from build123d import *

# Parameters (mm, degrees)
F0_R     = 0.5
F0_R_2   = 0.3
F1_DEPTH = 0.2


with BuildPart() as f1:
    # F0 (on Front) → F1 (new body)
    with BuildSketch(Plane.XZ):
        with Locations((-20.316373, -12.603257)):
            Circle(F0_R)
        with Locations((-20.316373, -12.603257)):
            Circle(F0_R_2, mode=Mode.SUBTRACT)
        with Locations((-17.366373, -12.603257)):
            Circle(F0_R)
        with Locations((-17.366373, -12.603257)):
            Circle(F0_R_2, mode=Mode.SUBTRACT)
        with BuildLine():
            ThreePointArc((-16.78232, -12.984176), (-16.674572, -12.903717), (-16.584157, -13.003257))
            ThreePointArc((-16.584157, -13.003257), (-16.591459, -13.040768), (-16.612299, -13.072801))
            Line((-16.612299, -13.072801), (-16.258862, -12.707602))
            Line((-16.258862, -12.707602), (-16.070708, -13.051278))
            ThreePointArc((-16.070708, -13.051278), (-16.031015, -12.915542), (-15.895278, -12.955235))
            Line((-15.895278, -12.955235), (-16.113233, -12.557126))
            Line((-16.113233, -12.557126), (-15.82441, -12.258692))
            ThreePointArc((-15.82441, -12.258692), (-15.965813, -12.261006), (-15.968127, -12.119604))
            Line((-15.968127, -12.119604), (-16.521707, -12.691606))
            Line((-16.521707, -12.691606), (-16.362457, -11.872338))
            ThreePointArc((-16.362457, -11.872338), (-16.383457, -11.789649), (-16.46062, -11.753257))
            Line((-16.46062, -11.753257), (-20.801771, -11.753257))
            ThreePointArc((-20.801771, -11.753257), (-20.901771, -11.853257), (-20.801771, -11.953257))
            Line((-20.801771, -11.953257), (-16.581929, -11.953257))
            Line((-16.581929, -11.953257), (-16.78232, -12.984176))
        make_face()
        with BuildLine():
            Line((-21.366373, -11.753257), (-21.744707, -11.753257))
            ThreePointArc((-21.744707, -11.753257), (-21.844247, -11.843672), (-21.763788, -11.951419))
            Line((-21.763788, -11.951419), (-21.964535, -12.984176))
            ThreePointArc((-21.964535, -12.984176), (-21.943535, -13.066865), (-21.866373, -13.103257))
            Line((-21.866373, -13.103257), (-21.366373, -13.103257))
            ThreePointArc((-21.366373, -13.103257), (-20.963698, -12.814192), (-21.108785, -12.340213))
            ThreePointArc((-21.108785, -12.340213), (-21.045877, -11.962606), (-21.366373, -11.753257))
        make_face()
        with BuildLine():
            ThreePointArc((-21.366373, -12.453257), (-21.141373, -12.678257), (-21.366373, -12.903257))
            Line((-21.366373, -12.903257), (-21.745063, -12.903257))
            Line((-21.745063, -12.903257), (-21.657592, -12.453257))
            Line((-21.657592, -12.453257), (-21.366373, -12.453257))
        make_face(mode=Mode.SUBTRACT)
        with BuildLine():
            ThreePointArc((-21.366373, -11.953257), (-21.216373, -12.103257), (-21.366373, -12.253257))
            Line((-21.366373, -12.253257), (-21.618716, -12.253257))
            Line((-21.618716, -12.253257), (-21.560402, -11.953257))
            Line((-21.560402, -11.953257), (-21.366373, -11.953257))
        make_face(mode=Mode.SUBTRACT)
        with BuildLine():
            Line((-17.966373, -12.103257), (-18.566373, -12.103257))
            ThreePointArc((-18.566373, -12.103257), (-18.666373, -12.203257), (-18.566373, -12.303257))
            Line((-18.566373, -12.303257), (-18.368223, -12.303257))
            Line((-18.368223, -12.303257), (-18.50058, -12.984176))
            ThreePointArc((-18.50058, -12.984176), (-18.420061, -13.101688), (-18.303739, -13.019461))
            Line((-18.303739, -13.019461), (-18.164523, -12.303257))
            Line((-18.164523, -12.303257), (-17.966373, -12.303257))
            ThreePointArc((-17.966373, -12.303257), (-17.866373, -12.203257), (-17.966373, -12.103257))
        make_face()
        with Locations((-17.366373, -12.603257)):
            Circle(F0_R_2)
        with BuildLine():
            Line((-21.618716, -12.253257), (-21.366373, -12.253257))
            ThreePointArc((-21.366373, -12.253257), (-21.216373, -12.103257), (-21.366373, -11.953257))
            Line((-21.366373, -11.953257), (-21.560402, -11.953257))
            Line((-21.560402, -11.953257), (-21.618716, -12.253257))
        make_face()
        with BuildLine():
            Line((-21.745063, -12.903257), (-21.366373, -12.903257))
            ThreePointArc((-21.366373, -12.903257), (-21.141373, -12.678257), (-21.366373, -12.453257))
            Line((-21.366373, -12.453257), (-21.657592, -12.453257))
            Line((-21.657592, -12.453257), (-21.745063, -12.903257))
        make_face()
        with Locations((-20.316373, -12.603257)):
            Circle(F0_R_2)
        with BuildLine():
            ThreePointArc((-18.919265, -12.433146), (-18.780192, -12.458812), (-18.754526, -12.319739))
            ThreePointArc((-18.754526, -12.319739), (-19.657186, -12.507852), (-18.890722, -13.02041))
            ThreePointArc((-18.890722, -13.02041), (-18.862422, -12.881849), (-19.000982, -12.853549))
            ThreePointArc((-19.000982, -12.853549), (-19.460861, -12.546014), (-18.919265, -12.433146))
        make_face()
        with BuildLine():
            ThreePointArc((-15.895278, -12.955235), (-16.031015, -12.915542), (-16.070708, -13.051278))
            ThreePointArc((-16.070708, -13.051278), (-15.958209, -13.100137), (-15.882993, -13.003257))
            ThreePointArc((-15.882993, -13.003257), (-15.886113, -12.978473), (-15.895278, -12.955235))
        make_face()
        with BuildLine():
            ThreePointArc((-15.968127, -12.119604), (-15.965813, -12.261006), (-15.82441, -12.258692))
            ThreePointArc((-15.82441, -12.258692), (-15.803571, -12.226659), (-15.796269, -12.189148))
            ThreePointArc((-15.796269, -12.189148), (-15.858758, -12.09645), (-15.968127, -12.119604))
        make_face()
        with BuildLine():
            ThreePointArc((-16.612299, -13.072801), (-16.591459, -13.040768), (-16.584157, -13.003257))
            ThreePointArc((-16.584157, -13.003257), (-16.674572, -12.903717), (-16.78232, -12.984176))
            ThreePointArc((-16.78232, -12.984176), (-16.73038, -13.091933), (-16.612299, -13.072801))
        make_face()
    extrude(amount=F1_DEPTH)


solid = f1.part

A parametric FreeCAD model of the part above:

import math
import FreeCAD as App
import Part
import Sketcher

V = App.Vector

doc = App.newDocument("Part")
params = doc.addObject("Spreadsheet::Sheet", "Params")
for row, (alias, value) in enumerate([
    ("sketch1_diameter", "1 mm"),
    ("sketch1_diameter2", "1 mm"),
    ("sketch1_radius", "0.1 mm"),
    ("sketch1_radius2", "0.1 mm"),
    ("sketch1_radius3", "0.099999 mm"),
    ("pad1_length", "0.2 mm"),
], start=1):
    params.set(f"A{row}", alias)
    params.set(f"B{row}", "=" + value)
    params.setAlias(f"B{row}", alias)

body = doc.addObject("PartDesign::Body", "Body")
body.AllowCompound = True

# Sketch on XZ plane
sketch1 = doc.addObject("Sketcher::SketchObject", "Sketch")
body.addObject(sketch1)
sketch1.AttachmentSupport = (doc.XZ_Plane, [""])
sketch1.MapMode = "FlatFace"
sketch1.addGeometry([
    Part.Circle(V(-20.316373, -12.603257, 0), V(0, 0, 1), 0.5),  # 0
    Part.Circle(V(-17.366373, -12.603257, 0), V(0, 0, 1), 0.5),  # 1
    Part.LineSegment(V(-16.612299, -13.072801, 0), V(-16.258862, -12.707602, 0)),  # 2
    Part.LineSegment(V(-16.258862, -12.707602, 0), V(-16.070708, -13.051278, 0)),  # 3
    Part.ArcOfCircle(Part.Circle(V(-15.982993, -13.003257, 0), V(0, 0, 1), 0.1), math.radians(-151.300852), math.radians(0.000022)),  # 4
    Part.ArcOfCircle(Part.Circle(V(-15.982999, -13.003258, 0), V(0, 0, 1), 0.100006), math.radians(0.000626), math.radians(28.698715)),  # 5
    Part.LineSegment(V(-15.895278, -12.955235, 0), V(-16.113233, -12.557126, 0)),  # 6
    Part.LineSegment(V(-16.113233, -12.557126, 0), V(-15.82441, -12.258692, 0)),  # 7
    Part.ArcOfCircle(Part.Circle(V(-15.896272, -12.189147, 0), V(0, 0, 1), 0.100003), math.radians(-44.06106), math.radians(-0.000403)),  # 8
    Part.ArcOfCircle(Part.Circle(V(-15.896269, -12.189148, 0), V(0, 0, 1), 0.1), math.radians(-0.000068), math.radians(135.937682)),  # 9
    Part.LineSegment(V(-15.968127, -12.119604, 0), V(-16.521707, -12.691606, 0)),  # 10
    Part.LineSegment(V(-16.521707, -12.691606, 0), V(-16.362457, -11.872338, 0)),  # 11
    Part.ArcOfCircle(Part.Circle(V(-16.460619, -11.853256, 0), V(0, 0, 1), 0.099999), math.radians(-11.000422), math.radians(90.000536)),  # 12
    Part.LineSegment(V(-16.46062, -11.753257, 0), V(-20.801771, -11.753257, 0)),  # 13
    Part.ArcOfCircle(Part.Circle(V(-20.801771, -11.853257, 0), V(0, 0, 1), 0.1), math.radians(90), math.radians(270)),  # 14
    Part.LineSegment(V(-20.801771, -11.953257, 0), V(-16.581929, -11.953257, 0)),  # 15
    Part.LineSegment(V(-16.581929, -11.953257, 0), V(-16.78232, -12.984176, 0)),  # 16
    Part.ArcOfCircle(Part.Circle(V(-16.684157, -13.003257, 0), V(0, 0, 1), 0.1), math.radians(169.000028), math.radians(315.937591)),  # 17
    Part.LineSegment(V(-21.366373, -11.753257, 0), V(-21.744707, -11.753257, 0)),  # 18
    Part.ArcOfCircle(Part.Circle(V(-21.744708, -11.853257, 0), V(0, 0, 1), 0.1), math.radians(89.999538), math.radians(259.000365)),  # 19
    Part.LineSegment(V(-21.763788, -11.951419, 0), V(-21.964535, -12.984176, 0)),  # 20
    Part.ArcOfCircle(Part.Circle(V(-21.866373, -13.003258, 0), V(0, 0, 1), 0.099999), math.radians(168.999578), math.radians(269.999963)),  # 21
    Part.LineSegment(V(-21.866373, -13.103257, 0), V(-21.366373, -13.103257, 0)),  # 22
    Part.ArcOfCircle(Part.Circle(V(-21.366372, -12.678257, 0), V(0, 0, 1), 0.425), math.radians(-90.000079), math.radians(52.692825)),  # 23
    Part.ArcOfCircle(Part.Circle(V(-21.366372, -12.103256, 0), V(0, 0, 1), 0.349999), math.radians(-42.611252), math.radians(90.000175)),  # 24
    Part.LineSegment(V(-17.966373, -12.103257, 0), V(-18.566373, -12.103257, 0)),  # 25
    Part.ArcOfCircle(Part.Circle(V(-18.566373, -12.203257, 0), V(0, 0, 1), 0.1), math.radians(90), math.radians(270)),  # 26
    Part.LineSegment(V(-18.566373, -12.303257, 0), V(-18.368223, -12.303257, 0)),  # 27
    Part.LineSegment(V(-18.368223, -12.303257, 0), V(-18.50058, -12.984176, 0)),  # 28
    Part.ArcOfCircle(Part.Circle(V(-18.402417, -13.003257, 0), V(0, 0, 1), 0.1), math.radians(169.000016), math.radians(350.674589)),  # 29
    Part.LineSegment(V(-18.303739, -13.019461, 0), V(-18.164523, -12.303257, 0)),  # 30
    Part.LineSegment(V(-18.164523, -12.303257, 0), V(-17.966373, -12.303257, 0)),  # 31
    Part.ArcOfCircle(Part.Circle(V(-17.966373, -12.203257, 0), V(0, 0, 1), 0.1), math.radians(-90), math.radians(90)),  # 32
    Part.ArcOfCircle(Part.Circle(V(-18.836896, -12.376442, 0), V(0, 0, 1), 0.1), math.radians(-145.456317), math.radians(34.543683)),  # 33
    Part.ArcOfCircle(Part.Circle(V(-19.166373, -12.603257, 0), V(0, 0, 1), 0.5), math.radians(34.543781), math.radians(303.456321)),  # 34
    Part.ArcOfCircle(Part.Circle(V(-18.945852, -12.93698, 0), V(0, 0, 1), 0.1), math.radians(-56.543609), math.radians(123.456229)),  # 35
    Part.ArcOfCircle(Part.Circle(V(-19.166373, -12.603257, 0), V(0, 0, 1), 0.3), math.radians(34.543873), math.radians(303.456407)),  # 36
], False)
sketch1.addConstraint([
    Sketcher.Constraint("Coincident", 2, 2, 3, 1),
    Sketcher.Constraint("Coincident", 3, 2, 4, 1),
    Sketcher.Constraint("Coincident", 4, 2, 5, 1),
    Sketcher.Constraint("Coincident", 5, 2, 6, 1),
    Sketcher.Constraint("Coincident", 6, 2, 7, 1),
    Sketcher.Constraint("Coincident", 7, 2, 8, 1),
    Sketcher.Constraint("Coincident", 8, 2, 9, 1),
    Sketcher.Constraint("Coincident", 9, 2, 10, 1),
    Sketcher.Constraint("Coincident", 10, 2, 11, 1),
    Sketcher.Constraint("Coincident", 11, 2, 12, 1),
    Sketcher.Constraint("Coincident", 12, 2, 13, 1),
    Sketcher.Constraint("Coincident", 13, 2, 14, 1),
    Sketcher.Constraint("Coincident", 14, 2, 15, 1),
    Sketcher.Constraint("Coincident", 15, 2, 16, 1),
    Sketcher.Constraint("Coincident", 16, 2, 17, 1),
    Sketcher.Constraint("Coincident", 17, 2, 2, 1),
    Sketcher.Constraint("Coincident", 18, 2, 19, 1),
    Sketcher.Constraint("Coincident", 19, 2, 20, 1),
    Sketcher.Constraint("Coincident", 20, 2, 21, 1),
    Sketcher.Constraint("Coincident", 21, 2, 22, 1),
    Sketcher.Constraint("Coincident", 22, 2, 23, 1),
    Sketcher.Constraint("Coincident", 23, 2, 24, 1),
    Sketcher.Constraint("Coincident", 24, 2, 18, 1),
    Sketcher.Constraint("Coincident", 25, 2, 26, 1),
    Sketcher.Constraint("Coincident", 26, 2, 27, 1),
    Sketcher.Constraint("Coincident", 27, 2, 28, 1),
    Sketcher.Constraint("Coincident", 28, 2, 29, 1),
    Sketcher.Constraint("Coincident", 29, 2, 30, 1),
    Sketcher.Constraint("Coincident", 30, 2, 31, 1),
    Sketcher.Constraint("Coincident", 31, 2, 32, 1),
    Sketcher.Constraint("Coincident", 32, 2, 25, 1),
    Sketcher.Constraint("Coincident", 33, 2, 34, 1),
    Sketcher.Constraint("Coincident", 34, 2, 35, 1),
    Sketcher.Constraint("Coincident", 35, 2, 36, 2),
    Sketcher.Constraint("Coincident", 36, 1, 33, 1),
    Sketcher.Constraint("Horizontal", 13),
    Sketcher.Constraint("Horizontal", 15),
    Sketcher.Constraint("Horizontal", 18),
    Sketcher.Constraint("Horizontal", 22),
    Sketcher.Constraint("Horizontal", 25),
    Sketcher.Constraint("Horizontal", 27),
    Sketcher.Constraint("Horizontal", 31),
    Sketcher.Constraint("Coincident", 5, 3, 4, 3),
    Sketcher.Constraint("Coincident", 9, 3, 8, 3),
    Sketcher.Constraint("Coincident", 36, 3, 34, 3),
    Sketcher.Constraint("Diameter", 0, 1.0),
    Sketcher.Constraint("Diameter", 1, 1.0),
    Sketcher.Constraint("Radius", 4, 0.1),
    Sketcher.Constraint("Radius", 9, 0.1),
    Sketcher.Constraint("Radius", 12, 0.099999),
    Sketcher.Constraint("Radius", 14, 0.1),
    Sketcher.Constraint("Radius", 17, 0.1),
    Sketcher.Constraint("Radius", 19, 0.1),
    Sketcher.Constraint("Radius", 21, 0.099999),
    Sketcher.Constraint("Radius", 26, 0.1),
    Sketcher.Constraint("Radius", 29, 0.1),
    Sketcher.Constraint("Radius", 32, 0.1),
    Sketcher.Constraint("Radius", 33, 0.1),
    Sketcher.Constraint("Radius", 34, 0.5),
    Sketcher.Constraint("Radius", 24, 0.349999),
    Sketcher.Constraint("DistanceX", 22, 1, 22, 2, 0.5),
    Sketcher.Constraint("DistanceX", 25, 2, 25, 1, 0.6),
    Sketcher.Constraint("Radius", 23, 0.425),
    Sketcher.Constraint("DistanceX", 23, 3, 1, 3, 3.999999),
    Sketcher.Constraint("DistanceY", 21, 2, 24, 3, 1.000001),
    Sketcher.Constraint("DistanceY", 4, 3, 1, 3, 0.4),
    Sketcher.Constraint("DistanceY", 4, 3, 0, 3, 0.4),
    Sketcher.Constraint("DistanceY", 17, 3, 1, 3, 0.4),
    Sketcher.Constraint("DistanceY", 21, 3, 0, 3, 0.400001),
    Sketcher.Constraint("DistanceX", 21, 3, 1, 3, 4.5),
    Sketcher.Constraint("DistanceX", 21, 3, 24, 3, 0.500001),
    Sketcher.Constraint("DistanceX", 26, 3, 1, 3, 1.2),
    Sketcher.Constraint("DistanceY", 1, 3, 26, 3, 0.4),
    Sketcher.Constraint("DistanceY", 29, 3, 26, 3, 0.8),
    Sketcher.Constraint("DistanceX", 26, 3, 32, 3, 0.6),
    Sketcher.Constraint("DistanceX", 34, 3, 26, 3, 0.6),
    Sketcher.Constraint("DistanceY", 34, 3, 26, 3, 0.4),
    Sketcher.Constraint("DistanceY", 19, 3, 13, 2, 0.1),
    Sketcher.Constraint("DistanceX", 21, 2, 23, 3, 0.500001),
    Sketcher.Constraint("DistanceX", 25, 2, 32, 3, 0.6),
    Sketcher.Constraint("DistanceX", 26, 2, 32, 3, 0.6),
    Sketcher.Constraint("DistanceX", 26, 2, 31, 2, 0.6),
    Sketcher.Constraint("DistanceX", 0, 3, 1, 3, 2.95),
    Sketcher.Constraint("DistanceX", 5, 3, -1, 1, 15.982999),
    Sketcher.Constraint("DistanceX", 10, 2, 3, 2, 0.450999),
    Sketcher.Constraint("DistanceX", 13, 2, 13, 1, 4.341151),
    Sketcher.Constraint("DistanceX", 27, 1, 27, 2, 0.19815),
    Sketcher.Constraint("DistanceX", 31, 1, 31, 2, 0.19815),
    Sketcher.Constraint("DistanceX", 17, 2, -1, 1, 16.612299),
    Sketcher.Constraint("DistanceY", 17, 2, -1, 1, 13.072801),
    Sketcher.Constraint("DistanceX", 1, 3, 8, 3, 1.470101),
    Sketcher.Constraint("DistanceX", 14, 3, 8, 3, 4.905499),
    Sketcher.Constraint("DistanceX", 29, 3, 12, 3, 1.941798),
    Sketcher.Constraint("DistanceX", 24, 3, 13, 2, 0.564601),
    Sketcher.Constraint("DistanceX", 24, 3, 14, 2, 0.564601),
    Sketcher.Constraint("DistanceY", 17, 2, 2, 2, 0.365199),
    Sketcher.Constraint("Distance", 2, 0.50822),
    Sketcher.Constraint("Distance", 3, 0.39181),
    Sketcher.Constraint("Distance", 7, 0.415309),
    Sketcher.Constraint("Distance", 30, 0.729609),
    Sketcher.Constraint("DistanceX", 15, 1, 15, 2, 4.219842),
    Sketcher.Constraint("DistanceX", 18, 2, 18, 1, 0.378334),
    Sketcher.Constraint("DistanceY", 5, 3, -1, 1, 13.003258),
    Sketcher.Constraint("DistanceX", 9, 3, -1, 1, 15.896269),
    Sketcher.Constraint("DistanceX", 12, 3, -1, 1, 16.460619),
    Sketcher.Constraint("DistanceY", 35, 3, -1, 1, 12.93698),
    Sketcher.Constraint("DistanceX", 5, 2, -1, 1, 15.895278),
    Sketcher.Constraint("DistanceX", 7, 2, -1, 1, 15.82441),
    Sketcher.Constraint("DistanceX", 16, 2, -1, 1, 16.78232),
    Sketcher.Constraint("DistanceY", 19, 2, -1, 1, 11.951419),
    Sketcher.Constraint("DistanceX", 28, 2, -1, 1, 18.50058),
    Sketcher.Constraint("DistanceY", 33, 2, -1, 1, 12.319739),
    Sketcher.Constraint("DistanceX", 34, 2, -1, 1, 18.890722),
    Sketcher.Constraint("DistanceX", 35, 2, -1, 1, 19.000982),
    Sketcher.Constraint("DistanceY", 4, 3, 8, 3, 0.81411),
    Sketcher.Constraint("DistanceX", 19, 3, 17, 3, 5.060551),
    Sketcher.Constraint("DistanceX", 33, 3, 29, 3, 0.434478),
    Sketcher.Constraint("DistanceY", 3, 2, 4, 2, 0.048021),
    Sketcher.Constraint("DistanceX", 2, 2, 6, 2, 0.145629),
    Sketcher.Constraint("DistanceY", 6, 2, 8, 2, 0.367978),
    Sketcher.Constraint("DistanceX", 9, 2, 9, 3, 0.071858),
    Sketcher.Constraint("DistanceY", 17, 3, 10, 2, 0.311651),
    Sketcher.Constraint("DistanceY", 11, 2, 12, 3, 0.019082),
    Sketcher.Constraint("DistanceX", 19, 2, 18, 2, 0.019081),
    Sketcher.Constraint("DistanceY", 21, 3, 20, 2, 0.019082),
    Sketcher.Constraint("DistanceX", 36, 1, 33, 3, 0.082369),
])
sketch1.setExpression("Constraints[45]", "Params.sketch1_diameter")
sketch1.setExpression("Constraints[46]", "Params.sketch1_diameter2")
sketch1.setExpression("Constraints[47]", "Params.sketch1_radius")
sketch1.setExpression("Constraints[48]", "Params.sketch1_radius2")
sketch1.setExpression("Constraints[49]", "Params.sketch1_radius3")
pad1 = doc.addObject("PartDesign::Pad", "Pad")
body.addObject(pad1)
pad1.Profile = sketch1
pad1.setExpression("Length", "Params.pad1_length")

doc.recompute()
